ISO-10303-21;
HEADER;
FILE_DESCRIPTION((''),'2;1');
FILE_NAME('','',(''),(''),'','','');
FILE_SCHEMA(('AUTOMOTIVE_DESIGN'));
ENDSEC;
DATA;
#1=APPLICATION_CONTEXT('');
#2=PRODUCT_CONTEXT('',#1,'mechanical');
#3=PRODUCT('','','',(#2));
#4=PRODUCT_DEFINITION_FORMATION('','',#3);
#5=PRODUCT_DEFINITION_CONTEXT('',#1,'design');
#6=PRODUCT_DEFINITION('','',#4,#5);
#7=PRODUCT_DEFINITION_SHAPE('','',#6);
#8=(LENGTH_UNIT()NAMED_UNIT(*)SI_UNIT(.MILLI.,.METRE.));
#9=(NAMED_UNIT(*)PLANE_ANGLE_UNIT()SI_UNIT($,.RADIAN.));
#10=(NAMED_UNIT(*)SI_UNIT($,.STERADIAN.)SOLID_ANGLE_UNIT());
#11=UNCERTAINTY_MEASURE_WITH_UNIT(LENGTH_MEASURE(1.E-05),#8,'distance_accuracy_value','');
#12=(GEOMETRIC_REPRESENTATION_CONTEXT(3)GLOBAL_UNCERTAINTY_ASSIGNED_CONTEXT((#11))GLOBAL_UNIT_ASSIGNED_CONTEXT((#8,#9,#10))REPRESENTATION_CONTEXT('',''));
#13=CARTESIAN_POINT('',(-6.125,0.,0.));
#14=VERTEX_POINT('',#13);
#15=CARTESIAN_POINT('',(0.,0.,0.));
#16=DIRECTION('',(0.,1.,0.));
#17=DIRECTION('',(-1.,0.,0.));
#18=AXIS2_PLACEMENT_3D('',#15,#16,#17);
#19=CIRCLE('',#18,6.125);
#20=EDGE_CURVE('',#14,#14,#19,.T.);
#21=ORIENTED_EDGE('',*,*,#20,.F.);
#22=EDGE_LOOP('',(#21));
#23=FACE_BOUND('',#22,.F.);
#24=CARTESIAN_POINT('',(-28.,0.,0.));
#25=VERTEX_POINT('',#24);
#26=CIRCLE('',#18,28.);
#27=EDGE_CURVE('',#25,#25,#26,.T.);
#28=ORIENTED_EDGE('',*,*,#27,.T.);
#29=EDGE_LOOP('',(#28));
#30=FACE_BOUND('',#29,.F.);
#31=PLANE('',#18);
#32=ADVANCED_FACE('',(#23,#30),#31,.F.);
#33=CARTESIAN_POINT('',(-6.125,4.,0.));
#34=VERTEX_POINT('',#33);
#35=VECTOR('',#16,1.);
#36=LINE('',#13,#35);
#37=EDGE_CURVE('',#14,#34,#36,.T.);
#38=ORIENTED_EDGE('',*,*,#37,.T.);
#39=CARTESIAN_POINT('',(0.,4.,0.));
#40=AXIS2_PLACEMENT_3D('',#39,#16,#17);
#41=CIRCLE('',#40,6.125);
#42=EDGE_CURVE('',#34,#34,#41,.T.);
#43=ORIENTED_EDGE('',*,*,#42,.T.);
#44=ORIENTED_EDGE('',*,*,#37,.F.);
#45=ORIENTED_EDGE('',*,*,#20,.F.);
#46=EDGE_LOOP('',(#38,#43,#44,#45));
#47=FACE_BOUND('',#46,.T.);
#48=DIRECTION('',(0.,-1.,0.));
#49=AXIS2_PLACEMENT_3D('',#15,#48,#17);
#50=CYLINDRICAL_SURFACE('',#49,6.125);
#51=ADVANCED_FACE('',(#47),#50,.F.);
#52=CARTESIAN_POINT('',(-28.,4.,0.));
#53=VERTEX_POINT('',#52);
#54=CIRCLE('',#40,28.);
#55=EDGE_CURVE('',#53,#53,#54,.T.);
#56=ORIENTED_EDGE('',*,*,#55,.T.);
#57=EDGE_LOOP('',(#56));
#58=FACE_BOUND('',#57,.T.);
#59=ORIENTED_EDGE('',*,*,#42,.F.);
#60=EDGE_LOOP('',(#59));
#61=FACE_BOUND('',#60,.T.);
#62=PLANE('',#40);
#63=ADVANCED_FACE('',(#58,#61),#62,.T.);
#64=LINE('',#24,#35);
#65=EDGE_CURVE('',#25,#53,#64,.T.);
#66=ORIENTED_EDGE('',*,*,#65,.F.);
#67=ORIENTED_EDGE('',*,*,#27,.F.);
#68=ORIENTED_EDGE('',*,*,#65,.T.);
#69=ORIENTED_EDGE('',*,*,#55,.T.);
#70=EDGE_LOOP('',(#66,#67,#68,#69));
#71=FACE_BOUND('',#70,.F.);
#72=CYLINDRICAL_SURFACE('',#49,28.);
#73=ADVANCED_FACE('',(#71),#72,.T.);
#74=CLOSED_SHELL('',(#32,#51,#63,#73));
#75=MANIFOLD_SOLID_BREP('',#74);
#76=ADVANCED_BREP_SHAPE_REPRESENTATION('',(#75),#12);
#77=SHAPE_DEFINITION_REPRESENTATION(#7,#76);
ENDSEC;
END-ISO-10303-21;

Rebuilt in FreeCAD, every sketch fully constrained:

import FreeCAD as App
import Part
import Sketcher

V = App.Vector

doc = App.newDocument("Part")
body = doc.addObject("PartDesign::Body", "Body")

sketch1 = body.newObject("Sketcher::SketchObject", "Sketch")
sketch1.AttachmentSupport = (doc.getObject("XZ_Plane"), [""])
sketch1.MapMode = "FlatFace"
sketch1.addGeometry([
    Part.Circle(V(0, 0, 0), V(0, 0, 1), 28),
    Part.Circle(V(0, 0, 0), V(0, 0, 1), 6.125),
], False)
sketch1.addConstraint([
    Sketcher.Constraint("Coincident", 0, 3, -1, 1),
    Sketcher.Constraint("Coincident", 1, 3, -1, 1),
    Sketcher.Constraint("Diameter", 0, 56.0),
    Sketcher.Constraint("Diameter", 1, 12.25),
])
pad1 = body.newObject("PartDesign::Pad", "Pad")
pad1.Profile = sketch1
pad1.Length = 4
pad1.Reversed = True

doc.recompute()
